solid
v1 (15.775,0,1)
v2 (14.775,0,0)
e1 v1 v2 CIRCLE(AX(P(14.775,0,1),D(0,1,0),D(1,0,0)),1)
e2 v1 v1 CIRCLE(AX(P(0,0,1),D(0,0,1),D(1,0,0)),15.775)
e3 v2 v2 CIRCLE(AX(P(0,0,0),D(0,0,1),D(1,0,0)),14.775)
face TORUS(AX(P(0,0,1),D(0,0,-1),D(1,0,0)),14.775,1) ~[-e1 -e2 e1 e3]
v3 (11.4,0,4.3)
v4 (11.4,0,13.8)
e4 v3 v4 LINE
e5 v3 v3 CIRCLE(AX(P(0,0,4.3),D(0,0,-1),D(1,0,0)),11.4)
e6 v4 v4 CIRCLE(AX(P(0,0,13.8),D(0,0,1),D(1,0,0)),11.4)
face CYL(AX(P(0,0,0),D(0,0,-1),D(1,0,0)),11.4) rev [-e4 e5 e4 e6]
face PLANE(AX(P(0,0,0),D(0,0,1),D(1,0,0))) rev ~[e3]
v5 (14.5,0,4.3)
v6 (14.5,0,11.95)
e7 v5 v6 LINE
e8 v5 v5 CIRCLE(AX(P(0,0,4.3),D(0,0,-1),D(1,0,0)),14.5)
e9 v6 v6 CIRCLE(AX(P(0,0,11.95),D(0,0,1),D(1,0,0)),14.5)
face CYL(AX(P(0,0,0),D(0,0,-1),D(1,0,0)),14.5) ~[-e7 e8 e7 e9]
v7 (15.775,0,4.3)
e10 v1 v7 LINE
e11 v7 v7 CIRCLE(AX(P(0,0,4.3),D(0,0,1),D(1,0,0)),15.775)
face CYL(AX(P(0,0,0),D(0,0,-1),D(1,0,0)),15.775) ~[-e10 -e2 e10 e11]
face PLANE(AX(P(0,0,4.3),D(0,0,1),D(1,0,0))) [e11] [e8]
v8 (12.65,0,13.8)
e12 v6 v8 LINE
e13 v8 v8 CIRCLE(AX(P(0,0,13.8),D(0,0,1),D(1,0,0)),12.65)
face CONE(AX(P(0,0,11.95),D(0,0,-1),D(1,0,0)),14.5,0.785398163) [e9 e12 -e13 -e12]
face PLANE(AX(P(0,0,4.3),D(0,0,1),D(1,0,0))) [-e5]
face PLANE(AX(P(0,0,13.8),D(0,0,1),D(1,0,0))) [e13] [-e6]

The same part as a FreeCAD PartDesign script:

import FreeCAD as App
import Part
import Sketcher

V = App.Vector


def edges_at(feature, points):
    """Names of the edges that pass closest to the given points."""
    edges = feature.Shape.Edges
    near = lambda p: min(range(len(edges)), key=lambda i: edges[i].distToShape(Part.Vertex(*p))[0])
    return sorted({f"Edge{near(p) + 1}" for p in points})

doc = App.newDocument("Part")
body = doc.addObject("PartDesign::Body", "Body")

sketch1 = doc.addObject("Sketcher::SketchObject", "Sketch")
body.addObject(sketch1)
sketch1.AttachmentSupport = (doc.XY_Plane, [""])
sketch1.MapMode = "FlatFace"
sketch1.addGeometry(Part.Circle(V(0, 0, 0), V(0, 0, 1), 16), False)
sketch1.addConstraint(Sketcher.Constraint("Coincident", 0, 3, -1, 1))
sketch1.addConstraint(Sketcher.Constraint("Diameter", 0, 31.55))
pad1 = doc.addObject("PartDesign::Pad", "Pad")
body.addObject(pad1)
pad1.Profile = sketch1
pad1.Length = 4.3

sketch2 = doc.addObject("Sketcher::SketchObject", "Sketch001")
body.addObject(sketch2)
sketch2.AttachmentSupport = (doc.XY_Plane, [""])
sketch2.MapMode = "FlatFace"
sketch2.addGeometry(Part.Circle(V(0, 0, 0), V(0, 0, 1), 14), False)
sketch2.addGeometry(Part.Circle(V(0, 0, 0), V(0, 0, 1), 11), False)
sketch2.addConstraint(Sketcher.Constraint("Coincident", 0, 3, -1, 1))
sketch2.addConstraint(Sketcher.Constraint("Coincident", 1, 3, -1, 1))
sketch2.addConstraint(Sketcher.Constraint("Diameter", 0, 29.0))
sketch2.addConstraint(Sketcher.Constraint("Diameter", 1, 22.8))
pad2 = doc.addObject("PartDesign::Pad", "Pad001")
body.addObject(pad2)
pad2.Profile = sketch2
pad2.Length = 13.8
doc.recompute()

chamfer = doc.addObject("PartDesign::Chamfer", "Chamfer")
body.addObject(chamfer)
chamfer.Base = (pad2, edges_at(pad2, [(-14.5, 0, 13.8)]))
chamfer.Size = 1.85
doc.recompute()

fillet = doc.addObject("PartDesign::Fillet", "Fillet")
body.addObject(fillet)
fillet.Base = (chamfer, edges_at(chamfer, [(-15.775, 0, 0)]))
fillet.Radius = 1

doc.recompute()
